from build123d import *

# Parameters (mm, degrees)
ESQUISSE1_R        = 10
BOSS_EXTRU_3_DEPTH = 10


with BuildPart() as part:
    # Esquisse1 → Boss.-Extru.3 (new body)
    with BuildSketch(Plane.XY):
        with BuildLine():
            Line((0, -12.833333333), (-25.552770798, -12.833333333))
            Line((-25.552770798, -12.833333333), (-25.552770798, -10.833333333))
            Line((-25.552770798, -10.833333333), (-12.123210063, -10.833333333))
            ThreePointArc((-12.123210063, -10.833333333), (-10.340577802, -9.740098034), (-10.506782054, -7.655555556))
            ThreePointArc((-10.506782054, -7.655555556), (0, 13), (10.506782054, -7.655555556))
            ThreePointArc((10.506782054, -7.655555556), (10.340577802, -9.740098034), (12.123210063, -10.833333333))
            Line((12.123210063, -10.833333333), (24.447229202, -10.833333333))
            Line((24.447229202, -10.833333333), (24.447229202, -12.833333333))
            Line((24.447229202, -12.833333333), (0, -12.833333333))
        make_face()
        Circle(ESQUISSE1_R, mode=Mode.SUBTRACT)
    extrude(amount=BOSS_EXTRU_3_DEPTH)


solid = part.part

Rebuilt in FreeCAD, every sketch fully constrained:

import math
import FreeCAD as App
import Part
import Sketcher
Q = App.Units.Quantity

doc = App.newDocument("Part")
body = doc.addObject("PartDesign::Body", "Body")

# Sketch on XY plane
sketch1 = doc.addObject("Sketcher::SketchObject", "Sketch")
body.addObject(sketch1)
sketch1.AttachmentSupport = (doc.XY_Plane, [""])
sketch1.MapMode = "FlatFace"
sketch1.addGeometry(Part.LineSegment(App.Vector(-25.552771, -10.833333, 0), App.Vector(-25.552771, -12.833333, 0)), False)
sketch1.addGeometry(Part.LineSegment(App.Vector(-25.552771, -12.833333, 0), App.Vector(24.447229, -12.833333, 0)), False)
sketch1.addGeometry(Part.LineSegment(App.Vector(24.447229, -12.833333, 0), App.Vector(24.447229, -10.833333, 0)), False)
sketch1.addGeometry(Part.LineSegment(App.Vector(24.447229, -10.833333, 0), App.Vector(12.12321, -10.833333, 0)), False)
sketch1.addGeometry(Part.ArcOfCircle(Part.Circle(App.Vector(12.12321, -8.833333, 0), App.Vector(0, 0, 1), 2), math.radians(143.9218), math.radians(270)), False)
sketch1.addGeometry(Part.ArcOfCircle(Part.Circle(App.Vector(0, 0, 0), App.Vector(0, 0, 1), 13), math.radians(-36.0782), math.radians(216.0782)), False)
sketch1.addGeometry(Part.ArcOfCircle(Part.Circle(App.Vector(-12.12321, -8.833333, 0), App.Vector(0, 0, 1), 2), math.radians(-90), math.radians(36.0782)), False)
sketch1.addGeometry(Part.LineSegment(App.Vector(-12.12321, -10.833333, 0), App.Vector(-25.552771, -10.833333, 0)), False)
sketch1.addGeometry(Part.Circle(App.Vector(0, 0, 0), App.Vector(0, 0, 1), 10), False)
sketch1.addConstraint(Sketcher.Constraint("Coincident", 0, 2, 1, 1))
sketch1.addConstraint(Sketcher.Constraint("Coincident", 1, 2, 2, 1))
sketch1.addConstraint(Sketcher.Constraint("Coincident", 2, 2, 3, 1))
sketch1.addConstraint(Sketcher.Constraint("Tangent", 3, 2, 4, 2))
sketch1.addConstraint(Sketcher.Constraint("Tangent", 4, 1, 5, 1))
sketch1.addConstraint(Sketcher.Constraint("Tangent", 5, 2, 6, 2))
sketch1.addConstraint(Sketcher.Constraint("Tangent", 6, 1, 7, 1))
sketch1.addConstraint(Sketcher.Constraint("Coincident", 7, 2, 0, 1))
sketch1.addConstraint(Sketcher.Constraint("Vertical", 0))
sketch1.addConstraint(Sketcher.Constraint("Horizontal", 1))
sketch1.addConstraint(Sketcher.Constraint("Vertical", 2))
sketch1.addConstraint(Sketcher.Constraint("Horizontal", 3))
sketch1.addConstraint(Sketcher.Constraint("Horizontal", 7))
sketch1.addConstraint(Sketcher.Constraint("Coincident", 5, 3, -1, 1))
sketch1.addConstraint(Sketcher.Constraint("Coincident", 8, 3, -1, 1))
sketch1.addConstraint(Sketcher.Constraint("Equal", 4, 6))
sketch1.addConstraint(Sketcher.Constraint("Horizontal", 4, 3, 6, 3))
sketch1.addConstraint(Sketcher.Constraint("Diameter", 8, Q("20 mm")))
sketch1.addConstraint(Sketcher.Constraint("Radius", 4, Q("2 mm")))
sketch1.addConstraint(Sketcher.Constraint("Radius", 5, Q("13 mm")))
sketch1.addConstraint(Sketcher.Constraint("DistanceX", 1, 1, 1, 2, Q("50 mm")))
sketch1.addConstraint(Sketcher.Constraint("DistanceY", 0, 2, 0, 1, Q("2 mm")))
sketch1.addConstraint(Sketcher.Constraint("DistanceX", 3, 2, 3, 1, Q("12.324019 mm")))
sketch1.addConstraint(Sketcher.Constraint("DistanceX", 7, 2, 7, 1, Q("13.429561 mm")))
pad1 = doc.addObject("PartDesign::Pad", "Pad")
body.addObject(pad1)
pad1.Profile = sketch1
pad1.Length = 10

doc.recompute()
